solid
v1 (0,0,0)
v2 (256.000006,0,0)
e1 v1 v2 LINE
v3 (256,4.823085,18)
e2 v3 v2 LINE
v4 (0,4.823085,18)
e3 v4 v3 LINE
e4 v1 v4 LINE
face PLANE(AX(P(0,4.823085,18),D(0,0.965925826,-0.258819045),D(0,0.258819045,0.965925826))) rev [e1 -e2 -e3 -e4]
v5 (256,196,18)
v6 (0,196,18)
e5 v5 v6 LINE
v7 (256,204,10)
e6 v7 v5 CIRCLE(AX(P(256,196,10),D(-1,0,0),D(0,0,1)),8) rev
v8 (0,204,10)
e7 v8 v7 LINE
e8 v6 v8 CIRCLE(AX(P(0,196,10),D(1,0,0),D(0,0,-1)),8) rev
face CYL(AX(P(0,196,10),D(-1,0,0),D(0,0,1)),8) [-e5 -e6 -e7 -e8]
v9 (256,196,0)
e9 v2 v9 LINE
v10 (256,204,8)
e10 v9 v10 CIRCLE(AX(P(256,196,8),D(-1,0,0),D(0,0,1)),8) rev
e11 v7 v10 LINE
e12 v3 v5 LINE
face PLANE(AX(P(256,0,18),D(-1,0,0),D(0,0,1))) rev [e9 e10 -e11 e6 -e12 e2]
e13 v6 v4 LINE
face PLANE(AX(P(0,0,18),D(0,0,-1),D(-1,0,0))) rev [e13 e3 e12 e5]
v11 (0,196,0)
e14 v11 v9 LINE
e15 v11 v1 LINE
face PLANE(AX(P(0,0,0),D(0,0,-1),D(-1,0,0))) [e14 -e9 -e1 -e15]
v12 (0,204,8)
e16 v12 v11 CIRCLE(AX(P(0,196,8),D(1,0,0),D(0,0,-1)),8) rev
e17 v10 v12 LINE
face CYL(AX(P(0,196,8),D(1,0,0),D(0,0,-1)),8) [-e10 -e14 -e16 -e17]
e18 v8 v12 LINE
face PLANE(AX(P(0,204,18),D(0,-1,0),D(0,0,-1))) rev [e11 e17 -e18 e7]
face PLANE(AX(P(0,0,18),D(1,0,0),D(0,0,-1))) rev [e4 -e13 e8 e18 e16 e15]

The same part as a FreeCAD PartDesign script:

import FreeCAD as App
import Part
import Sketcher

V = App.Vector
Q = App.Units.Quantity


def edges_at(feature, points):
    """Names of the edges that pass closest to the given points."""
    edges = feature.Shape.Edges
    near = lambda p: min(range(len(edges)), key=lambda i: edges[i].distToShape(Part.Vertex(*p))[0])
    return sorted({f"Edge{near(p) + 1}" for p in points})

doc = App.newDocument("Part")
body = doc.addObject("PartDesign::Body", "Body")

sketch1 = body.newObject("Sketcher::SketchObject", "Sketch")
sketch1.AttachmentSupport = (doc.getObject("XY_Plane"), [""])
sketch1.MapMode = "FlatFace"
sketch1.addGeometry(Part.LineSegment(V(0, 204, 0), V(0, 0, 0)), False)
sketch1.addGeometry(Part.LineSegment(V(0, 0, 0), V(256, 0, 0)), False)
sketch1.addGeometry(Part.LineSegment(V(256, 0, 0), V(256, 204, 0)), False)
sketch1.addGeometry(Part.LineSegment(V(256, 204, 0), V(0, 204, 0)), False)
sketch1.addConstraint(Sketcher.Constraint("Coincident", 0, 2, 1, 1))
sketch1.addConstraint(Sketcher.Constraint("Coincident", 1, 2, 2, 1))
sketch1.addConstraint(Sketcher.Constraint("Coincident", 2, 2, 3, 1))
sketch1.addConstraint(Sketcher.Constraint("Coincident", 3, 2, 0, 1))
sketch1.addConstraint(Sketcher.Constraint("Vertical", 0))
sketch1.addConstraint(Sketcher.Constraint("Horizontal", 1))
sketch1.addConstraint(Sketcher.Constraint("Vertical", 2))
sketch1.addConstraint(Sketcher.Constraint("Horizontal", 3))
sketch1.addConstraint(Sketcher.Constraint("Coincident", 0, 2, -1, 1))
sketch1.addConstraint(Sketcher.Constraint("DistanceX", 1, 1, 1, 2, Q("256 mm")))
sketch1.addConstraint(Sketcher.Constraint("DistanceY", 0, 2, 0, 1, Q("204 mm")))
pad1 = body.newObject("PartDesign::Pad", "Pad")
pad1.Profile = sketch1
pad1.Length = 18
doc.recompute()

fillet = body.newObject("PartDesign::Fillet", "Fillet")
fillet.Base = (pad1, edges_at(pad1, [(128, 204, 18), (128, 204, 0)]))
fillet.Radius = 8

sketch2 = body.newObject("Sketcher::SketchObject", "Sketch001")
sketch2.AttachmentSupport = (doc.getObject("YZ_Plane"), [""])
sketch2.MapMode = "FlatFace"
sketch2.AttachmentOffset = App.Placement(V(0, 0, 256), App.Rotation())
sketch2.addGeometry(Part.LineSegment(V(0, 18, 0), V(0, 0, 0)), False)
sketch2.addGeometry(Part.LineSegment(V(0, 0, 0), V(4.8, 18, 0)), False)
sketch2.addGeometry(Part.LineSegment(V(4.8, 18, 0), V(0, 18, 0)), False)
sketch2.addConstraint(Sketcher.Constraint("Coincident", 0, 2, 1, 1))
sketch2.addConstraint(Sketcher.Constraint("Coincident", 1, 2, 2, 1))
sketch2.addConstraint(Sketcher.Constraint("Coincident", 2, 2, 0, 1))
sketch2.addConstraint(Sketcher.Constraint("Vertical", 0))
sketch2.addConstraint(Sketcher.Constraint("Horizontal", 2))
sketch2.addConstraint(Sketcher.Constraint("Coincident", 0, 2, -1, 1))
sketch2.addConstraint(Sketcher.Constraint("DistanceY", 0, 2, 0, 1, Q("18 mm")))
sketch2.addConstraint(Sketcher.Constraint("Angle", 1, Q("75 deg")))
pocket1 = body.newObject("PartDesign::Pocket", "Pocket")
pocket1.Profile = sketch2
pocket1.Type = "ThroughAll"
pocket1.Midplane = True

doc.recompute()
